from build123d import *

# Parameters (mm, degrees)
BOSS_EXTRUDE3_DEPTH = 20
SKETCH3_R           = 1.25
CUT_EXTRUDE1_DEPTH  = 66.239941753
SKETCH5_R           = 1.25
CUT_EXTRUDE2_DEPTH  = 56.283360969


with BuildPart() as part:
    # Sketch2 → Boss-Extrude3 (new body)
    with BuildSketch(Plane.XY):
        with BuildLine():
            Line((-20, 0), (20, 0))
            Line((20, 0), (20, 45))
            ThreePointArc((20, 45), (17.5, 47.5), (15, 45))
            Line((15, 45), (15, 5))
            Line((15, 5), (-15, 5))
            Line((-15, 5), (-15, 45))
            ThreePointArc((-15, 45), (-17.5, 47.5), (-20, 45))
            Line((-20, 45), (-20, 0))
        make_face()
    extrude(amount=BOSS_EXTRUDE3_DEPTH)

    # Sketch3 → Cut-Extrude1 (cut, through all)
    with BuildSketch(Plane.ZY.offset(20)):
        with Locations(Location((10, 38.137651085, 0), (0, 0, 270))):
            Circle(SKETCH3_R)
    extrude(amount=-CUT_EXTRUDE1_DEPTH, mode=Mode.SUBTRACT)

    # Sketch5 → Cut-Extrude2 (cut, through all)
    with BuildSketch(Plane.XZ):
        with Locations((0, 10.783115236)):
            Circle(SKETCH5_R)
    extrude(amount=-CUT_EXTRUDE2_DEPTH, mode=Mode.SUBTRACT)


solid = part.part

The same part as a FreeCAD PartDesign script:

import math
import FreeCAD as App
import Part
import Sketcher

V = App.Vector

doc = App.newDocument("Part")
body = doc.addObject("PartDesign::Body", "Body")

sketch1 = doc.addObject("Sketcher::SketchObject", "Sketch")
body.addObject(sketch1)
sketch1.AttachmentSupport = (doc.XY_Plane, [""])
sketch1.MapMode = "FlatFace"
sketch1.addGeometry(Part.LineSegment(V(-20, 0, 0), V(20, 0, 0)), False)
sketch1.addGeometry(Part.LineSegment(V(20, 0, 0), V(20, 45, 0)), False)
sketch1.addGeometry(Part.ArcOfCircle(Part.Circle(V(17.5, 45, 0), V(0, 0, 1), 2.5), math.radians(0), math.radians(180)), False)
sketch1.addGeometry(Part.LineSegment(V(15, 45, 0), V(15, 5, 0)), False)
sketch1.addGeometry(Part.LineSegment(V(15, 5, 0), V(-15, 5, 0)), False)
sketch1.addGeometry(Part.LineSegment(V(-15, 5, 0), V(-15, 45, 0)), False)
sketch1.addGeometry(Part.ArcOfCircle(Part.Circle(V(-17.5, 45, 0), V(0, 0, 1), 2.5), math.radians(0), math.radians(180)), False)
sketch1.addGeometry(Part.LineSegment(V(-20, 45, 0), V(-20, 0, 0)), False)
sketch1.addConstraint(Sketcher.Constraint("Coincident", 0, 2, 1, 1))
sketch1.addConstraint(Sketcher.Constraint("Tangent", 1, 2, 2, 1))
sketch1.addConstraint(Sketcher.Constraint("Tangent", 2, 2, 3, 1))
sketch1.addConstraint(Sketcher.Constraint("Coincident", 3, 2, 4, 1))
sketch1.addConstraint(Sketcher.Constraint("Coincident", 4, 2, 5, 1))
sketch1.addConstraint(Sketcher.Constraint("Tangent", 5, 2, 6, 1))
sketch1.addConstraint(Sketcher.Constraint("Tangent", 6, 2, 7, 1))
sketch1.addConstraint(Sketcher.Constraint("Coincident", 7, 2, 0, 1))
sketch1.addConstraint(Sketcher.Constraint("Horizontal", 0))
sketch1.addConstraint(Sketcher.Constraint("Vertical", 1))
sketch1.addConstraint(Sketcher.Constraint("Vertical", 3))
sketch1.addConstraint(Sketcher.Constraint("Horizontal", 4))
sketch1.addConstraint(Sketcher.Constraint("Vertical", 5))
sketch1.addConstraint(Sketcher.Constraint("Vertical", 7))
sketch1.addConstraint(Sketcher.Constraint("Equal", 2, 6))
sketch1.addConstraint(Sketcher.Constraint("Symmetric", 0, 2, 7, 2, -1, 1))
sketch1.addConstraint(Sketcher.Constraint("Horizontal", 2, 3, 6, 3))
sketch1.addConstraint(Sketcher.Constraint("Equal", 0, 3))
sketch1.addConstraint(Sketcher.Constraint("Radius", 2, 2.5))
sketch1.addConstraint(Sketcher.Constraint("DistanceX", 0, 1, 0, 2, 40.0))
sketch1.addConstraint(Sketcher.Constraint("DistanceY", 1, 1, 1, 2, 45.0))
pad1 = doc.addObject("PartDesign::Pad", "Pad")
body.addObject(pad1)
pad1.Profile = sketch1
pad1.Length = 20

sketch2 = doc.addObject("Sketcher::SketchObject", "Sketch001")
body.addObject(sketch2)
sketch2.AttachmentSupport = (doc.YZ_Plane, [""])
sketch2.MapMode = "FlatFace"
sketch2.AttachmentOffset = App.Placement(V(0, 0, -20), App.Rotation())
sketch2.addGeometry(Part.Circle(V(38.1, 10, 0), V(0, 0, 1), 1.2), False)
sketch2.addConstraint(Sketcher.Constraint("Diameter", 0, 2.5))
sketch2.addConstraint(Sketcher.Constraint("DistanceY", -1, 1, 0, 3, 10.0))
sketch2.addConstraint(Sketcher.Constraint("DistanceX", -1, 1, 0, 3, 38.137651))
pocket1 = doc.addObject("PartDesign::Pocket", "Pocket")
body.addObject(pocket1)
pocket1.Profile = sketch2
pocket1.Type = "ThroughAll"
pocket1.Reversed = True

sketch3 = doc.addObject("Sketcher::SketchObject", "Sketch002")
body.addObject(sketch3)
sketch3.AttachmentSupport = (doc.XZ_Plane, [""])
sketch3.MapMode = "FlatFace"
sketch3.addGeometry(Part.Circle(V(0, 10.8, 0), V(0, 0, 1), 1.2), False)
sketch3.addConstraint(Sketcher.Constraint("PointOnObject", 0, 3, -2))
sketch3.addConstraint(Sketcher.Constraint("Diameter", 0, 2.5))
sketch3.addConstraint(Sketcher.Constraint("DistanceY", -1, 1, 0, 3, 10.783115))
pocket2 = doc.addObject("PartDesign::Pocket", "Pocket001")
body.addObject(pocket2)
pocket2.Profile = sketch3
pocket2.Type = "ThroughAll"

doc.recompute()
